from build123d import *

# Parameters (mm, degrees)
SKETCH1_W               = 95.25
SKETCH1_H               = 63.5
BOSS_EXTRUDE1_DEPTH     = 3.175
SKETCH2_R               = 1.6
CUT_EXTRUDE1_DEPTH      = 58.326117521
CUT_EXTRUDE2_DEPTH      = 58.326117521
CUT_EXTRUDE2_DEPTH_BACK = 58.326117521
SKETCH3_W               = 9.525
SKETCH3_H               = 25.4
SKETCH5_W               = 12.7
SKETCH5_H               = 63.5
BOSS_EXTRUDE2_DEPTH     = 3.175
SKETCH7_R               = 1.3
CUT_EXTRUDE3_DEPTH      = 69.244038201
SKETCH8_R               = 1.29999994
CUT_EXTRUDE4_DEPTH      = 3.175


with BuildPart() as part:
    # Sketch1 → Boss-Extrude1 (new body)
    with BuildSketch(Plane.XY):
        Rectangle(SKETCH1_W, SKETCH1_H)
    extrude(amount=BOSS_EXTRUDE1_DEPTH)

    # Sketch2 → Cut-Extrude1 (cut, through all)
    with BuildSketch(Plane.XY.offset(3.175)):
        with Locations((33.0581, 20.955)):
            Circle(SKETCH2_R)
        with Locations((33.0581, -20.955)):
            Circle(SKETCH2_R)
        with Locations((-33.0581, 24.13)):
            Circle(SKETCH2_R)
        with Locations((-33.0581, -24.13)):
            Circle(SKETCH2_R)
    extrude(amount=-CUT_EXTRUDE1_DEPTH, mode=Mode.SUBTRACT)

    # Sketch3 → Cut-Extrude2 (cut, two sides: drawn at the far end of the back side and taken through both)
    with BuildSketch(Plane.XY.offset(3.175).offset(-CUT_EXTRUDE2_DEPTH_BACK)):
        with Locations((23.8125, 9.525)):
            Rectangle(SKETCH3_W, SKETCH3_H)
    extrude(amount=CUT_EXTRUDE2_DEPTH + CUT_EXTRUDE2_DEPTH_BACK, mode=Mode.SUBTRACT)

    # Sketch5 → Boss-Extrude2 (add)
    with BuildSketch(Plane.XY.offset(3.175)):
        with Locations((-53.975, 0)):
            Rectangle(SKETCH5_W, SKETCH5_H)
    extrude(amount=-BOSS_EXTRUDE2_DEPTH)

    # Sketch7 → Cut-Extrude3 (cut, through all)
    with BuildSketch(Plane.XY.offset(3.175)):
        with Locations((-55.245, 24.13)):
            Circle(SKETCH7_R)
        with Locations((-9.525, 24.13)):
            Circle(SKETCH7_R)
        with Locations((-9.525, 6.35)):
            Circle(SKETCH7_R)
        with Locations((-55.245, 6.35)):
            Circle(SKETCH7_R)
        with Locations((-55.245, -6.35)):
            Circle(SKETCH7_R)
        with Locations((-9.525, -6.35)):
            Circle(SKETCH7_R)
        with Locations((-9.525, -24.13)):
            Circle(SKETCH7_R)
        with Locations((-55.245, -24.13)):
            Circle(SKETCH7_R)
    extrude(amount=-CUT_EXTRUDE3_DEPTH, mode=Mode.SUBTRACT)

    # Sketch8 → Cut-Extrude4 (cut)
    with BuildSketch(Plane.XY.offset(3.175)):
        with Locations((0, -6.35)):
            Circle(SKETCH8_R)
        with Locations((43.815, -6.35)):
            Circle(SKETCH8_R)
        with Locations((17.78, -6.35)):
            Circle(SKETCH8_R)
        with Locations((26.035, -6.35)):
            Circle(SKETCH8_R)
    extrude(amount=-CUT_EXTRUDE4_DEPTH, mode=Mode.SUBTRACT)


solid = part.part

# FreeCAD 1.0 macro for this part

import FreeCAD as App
import Part
import Sketcher
Q = App.Units.Quantity

doc = App.newDocument("Part")
body = doc.addObject("PartDesign::Body", "Body")

# Sketch on XY plane
sketch1 = doc.addObject("Sketcher::SketchObject", "Sketch")
body.addObject(sketch1)
sketch1.AttachmentSupport = (doc.XY_Plane, [""])
sketch1.MapMode = "FlatFace"
sketch1.addGeometry(Part.LineSegment(App.Vector(-47.625, 31.75, 0), App.Vector(-47.625, -31.75, 0)), False)
sketch1.addGeometry(Part.LineSegment(App.Vector(-47.625, -31.75, 0), App.Vector(47.625, -31.75, 0)), False)
sketch1.addGeometry(Part.LineSegment(App.Vector(47.625, -31.75, 0), App.Vector(47.625, 31.75, 0)), False)
sketch1.addGeometry(Part.LineSegment(App.Vector(47.625, 31.75, 0), App.Vector(-47.625, 31.75, 0)), False)
sketch1.addConstraint(Sketcher.Constraint("Coincident", 0, 2, 1, 1))
sketch1.addConstraint(Sketcher.Constraint("Coincident", 1, 2, 2, 1))
sketch1.addConstraint(Sketcher.Constraint("Coincident", 2, 2, 3, 1))
sketch1.addConstraint(Sketcher.Constraint("Coincident", 3, 2, 0, 1))
sketch1.addConstraint(Sketcher.Constraint("Vertical", 0))
sketch1.addConstraint(Sketcher.Constraint("Horizontal", 1))
sketch1.addConstraint(Sketcher.Constraint("Vertical", 2))
sketch1.addConstraint(Sketcher.Constraint("Horizontal", 3))
sketch1.addConstraint(Sketcher.Constraint("Symmetric", 0, 2, 2, 2, -1, 1))
sketch1.addConstraint(Sketcher.Constraint("DistanceY", 0, 2, 0, 1, Q("2.5 in")))
sketch1.addConstraint(Sketcher.Constraint("DistanceX", 1, 1, 1, 2, Q("3.75 in")))
pad1 = doc.addObject("PartDesign::Pad", "Pad")
body.addObject(pad1)
pad1.Profile = sketch1
pad1.Length = Q("0.125 in")

# Sketch on XY plane
sketch2 = doc.addObject("Sketcher::SketchObject", "Sketch001")
body.addObject(sketch2)
sketch2.AttachmentSupport = (doc.XY_Plane, [""])
sketch2.MapMode = "FlatFace"
sketch2.AttachmentOffset = App.Placement(App.Vector(0, 0, 0.125 * 25.4), App.Rotation())
sketch2.addGeometry(Part.Circle(App.Vector(33.0581, 20.955, 0), App.Vector(0, 0, 1), 1.6), False)
sketch2.addGeometry(Part.Circle(App.Vector(33.0581, -20.955, 0), App.Vector(0, 0, 1), 1.6), False)
sketch2.addGeometry(Part.Circle(App.Vector(-33.0581, 24.13, 0), App.Vector(0, 0, 1), 1.6), False)
sketch2.addGeometry(Part.Circle(App.Vector(-33.0581, -24.13, 0), App.Vector(0, 0, 1), 1.6), False)
sketch2.addConstraint(Sketcher.Constraint("Equal", 0, 1))
sketch2.addConstraint(Sketcher.Constraint("Equal", 1, 2))
sketch2.addConstraint(Sketcher.Constraint("Equal", 2, 3))
sketch2.addConstraint(Sketcher.Constraint("Symmetric", 0, 3, 1, 3, -1))
sketch2.addConstraint(Sketcher.Constraint("Symmetric", 2, 3, 3, 3, -1))
sketch2.addConstraint(Sketcher.Constraint("DistanceY", 3, 3, 2, 3, Q("1.9 in")))
sketch2.addConstraint(Sketcher.Constraint("Diameter", 0, 3.2))
sketch2.addConstraint(Sketcher.Constraint("DistanceY", 1, 3, 0, 3, Q("1.65 in")))
sketch2.addConstraint(Sketcher.Constraint("DistanceX", 2, 3, 0, 3, Q("2.603 in")))
sketch2.addConstraint(Sketcher.Constraint("DistanceX", -1, 1, 0, 3, Q("1.3015 in")))
pocket1 = doc.addObject("PartDesign::Pocket", "Pocket")
body.addObject(pocket1)
pocket1.Profile = sketch2
pocket1.Type = "ThroughAll"

# Sketch on XY plane
sketch3 = doc.addObject("Sketcher::SketchObject", "Sketch002")
body.addObject(sketch3)
sketch3.AttachmentSupport = (doc.XY_Plane, [""])
sketch3.MapMode = "FlatFace"
sketch3.AttachmentOffset = App.Placement(App.Vector(0, 0, 0.125 * 25.4), App.Rotation())
sketch3.addGeometry(Part.LineSegment(App.Vector(19.05, 22.225, 0), App.Vector(19.05, -3.175, 0)), False)
sketch3.addGeometry(Part.LineSegment(App.Vector(19.05, -3.175, 0), App.Vector(28.575, -3.175, 0)), False)
sketch3.addGeometry(Part.LineSegment(App.Vector(28.575, -3.175, 0), App.Vector(28.575, 22.225, 0)), False)
sketch3.addGeometry(Part.LineSegment(App.Vector(28.575, 22.225, 0), App.Vector(19.05, 22.225, 0)), False)
sketch3.addConstraint(Sketcher.Constraint("Coincident", 0, 2, 1, 1))
sketch3.addConstraint(Sketcher.Constraint("Coincident", 1, 2, 2, 1))
sketch3.addConstraint(Sketcher.Constraint("Coincident", 2, 2, 3, 1))
sketch3.addConstraint(Sketcher.Constraint("Coincident", 3, 2, 0, 1))
sketch3.addConstraint(Sketcher.Constraint("Vertical", 0))
sketch3.addConstraint(Sketcher.Constraint("Horizontal", 1))
sketch3.addConstraint(Sketcher.Constraint("Vertical", 2))
sketch3.addConstraint(Sketcher.Constraint("Horizontal", 3))
sketch3.addConstraint(Sketcher.Constraint("DistanceY", 0, 2, 0, 1, Q("1 in")))
sketch3.addConstraint(Sketcher.Constraint("DistanceX", 1, 1, 1, 2, Q("0.375 in")))
sketch3.addConstraint(Sketcher.Constraint("DistanceX", -1, 1, 0, 2, Q("0.75 in")))
sketch3.addConstraint(Sketcher.Constraint("DistanceY", 0, 2, -1, 1, Q("0.125 in")))
pocket2 = doc.addObject("PartDesign::Pocket", "Pocket001")
body.addObject(pocket2)
pocket2.Profile = sketch3
pocket2.Type = "ThroughAll"
pocket2.Midplane = True

# Sketch on XY plane
sketch4 = doc.addObject("Sketcher::SketchObject", "Sketch003")
body.addObject(sketch4)
sketch4.AttachmentSupport = (doc.XY_Plane, [""])
sketch4.MapMode = "FlatFace"
sketch4.AttachmentOffset = App.Placement(App.Vector(0, 0, 0.125 * 25.4), App.Rotation())
sketch4.addGeometry(Part.LineSegment(App.Vector(-60.325, 31.75, 0), App.Vector(-60.325, -31.75, 0)), False)
sketch4.addGeometry(Part.LineSegment(App.Vector(-60.325, -31.75, 0), App.Vector(-47.625, -31.75, 0)), False)
sketch4.addGeometry(Part.LineSegment(App.Vector(-47.625, -31.75, 0), App.Vector(-47.625, 31.75, 0)), False)
sketch4.addGeometry(Part.LineSegment(App.Vector(-47.625, 31.75, 0), App.Vector(-60.325, 31.75, 0)), False)
sketch4.addConstraint(Sketcher.Constraint("Coincident", 0, 2, 1, 1))
sketch4.addConstraint(Sketcher.Constraint("Coincident", 1, 2, 2, 1))
sketch4.addConstraint(Sketcher.Constraint("Coincident", 2, 2, 3, 1))
sketch4.addConstraint(Sketcher.Constraint("Coincident", 3, 2, 0, 1))
sketch4.addConstraint(Sketcher.Constraint("Vertical", 0))
sketch4.addConstraint(Sketcher.Constraint("Horizontal", 1))
sketch4.addConstraint(Sketcher.Constraint("Vertical", 2))
sketch4.addConstraint(Sketcher.Constraint("Horizontal", 3))
sketch4.addConstraint(Sketcher.Constraint("DistanceX", 1, 1, 1, 2, Q("0.5 in")))
sketch4.addConstraint(Sketcher.Constraint("DistanceY", 0, 2, 0, 1, Q("2.5 in")))
sketch4.addConstraint(Sketcher.Constraint("DistanceY", 0, 2, -1, 1, Q("1.25 in")))
sketch4.addConstraint(Sketcher.Constraint("DistanceX", 0, 2, -1, 1, Q("2.375 in")))
pad2 = doc.addObject("PartDesign::Pad", "Pad001")
body.addObject(pad2)
pad2.Profile = sketch4
pad2.Length = Q("0.125 in")
pad2.Reversed = True

# Sketch on XY plane
sketch5 = doc.addObject("Sketcher::SketchObject", "Sketch004")
body.addObject(sketch5)
sketch5.AttachmentSupport = (doc.XY_Plane, [""])
sketch5.MapMode = "FlatFace"
sketch5.AttachmentOffset = App.Placement(App.Vector(0, 0, 0.125 * 25.4), App.Rotation())
sketch5.addGeometry(Part.Circle(App.Vector(-55.245, 24.13, 0), App.Vector(0, 0, 1), 1.3), False)
sketch5.addGeometry(Part.Circle(App.Vector(-9.525, 24.13, 0), App.Vector(0, 0, 1), 1.3), False)
sketch5.addGeometry(Part.Circle(App.Vector(-9.525, 6.35, 0), App.Vector(0, 0, 1), 1.3), False)
sketch5.addGeometry(Part.Circle(App.Vector(-55.245, 6.35, 0), App.Vector(0, 0, 1), 1.3), False)
sketch5.addGeometry(Part.Circle(App.Vector(-55.245, -6.35, 0), App.Vector(0, 0, 1), 1.3), False)
sketch5.addGeometry(Part.Circle(App.Vector(-9.525, -6.35, 0), App.Vector(0, 0, 1), 1.3), False)
sketch5.addGeometry(Part.Circle(App.Vector(-9.525, -24.13, 0), App.Vector(0, 0, 1), 1.3), False)
sketch5.addGeometry(Part.Circle(App.Vector(-55.245, -24.13, 0), App.Vector(0, 0, 1), 1.3), False)
sketch5.addConstraint(Sketcher.Constraint("Equal", 0, 1))
sketch5.addConstraint(Sketcher.Constraint("Equal", 1, 2))
sketch5.addConstraint(Sketcher.Constraint("Equal", 2, 3))
sketch5.addConstraint(Sketcher.Constraint("Equal", 3, 4))
sketch5.addConstraint(Sketcher.Constraint("Equal", 4, 5))
sketch5.addConstraint(Sketcher.Constraint("Equal", 5, 6))
sketch5.addConstraint(Sketcher.Constraint("Equal", 6, 7))
sketch5.addConstraint(Sketcher.Constraint("Symmetric", 3, 3, 4, 3, -1))
sketch5.addConstraint(Sketcher.Constraint("Symmetric", 2, 3, 5, 3, -1))
sketch5.addConstraint(Sketcher.Constraint("Symmetric", 1, 3, 6, 3, -1))
sketch5.addConstraint(Sketcher.Constraint("Symmetric", 0, 3, 7, 3, -1))
sketch5.addConstraint(Sketcher.Constraint("Horizontal", 0, 3, 1, 3))
sketch5.addConstraint(Sketcher.Constraint("Horizontal", 2, 3, 3, 3))
sketch5.addConstraint(Sketcher.Constraint("Vertical", 1, 3, 2, 3))
sketch5.addConstraint(Sketcher.Constraint("Vertical", 0, 3, 3, 3))
sketch5.addConstraint(Sketcher.Constraint("DistanceX", 0, 3, 1, 3, Q("1.8 in")))
sketch5.addConstraint(Sketcher.Constraint("DistanceY", 2, 3, 1, 3, Q("0.7 in")))
sketch5.addConstraint(Sketcher.Constraint("DistanceY", 4, 3, 3, 3, Q("0.5 in")))
sketch5.addConstraint(Sketcher.Constraint("Diameter", 0, 2.6))
sketch5.addConstraint(Sketcher.Constraint("DistanceX", 0, 3, -1, 1, Q("2.175 in")))
pocket3 = doc.addObject("PartDesign::Pocket", "Pocket002")
body.addObject(pocket3)
pocket3.Profile = sketch5
pocket3.Type = "ThroughAll"

# Sketch on XY plane
sketch6 = doc.addObject("Sketcher::SketchObject", "Sketch005")
body.addObject(sketch6)
sketch6.AttachmentSupport = (doc.XY_Plane, [""])
sketch6.MapMode = "FlatFace"
sketch6.AttachmentOffset = App.Placement(App.Vector(0, 0, 0.125 * 25.4), App.Rotation())
sketch6.addGeometry(Part.Circle(App.Vector(0, -6.35, 0), App.Vector(0, 0, 1), 1.3), False)
sketch6.addGeometry(Part.Circle(App.Vector(43.815, -6.35, 0), App.Vector(0, 0, 1), 1.3), False)
sketch6.addGeometry(Part.Circle(App.Vector(17.78, -6.35, 0), App.Vector(0, 0, 1), 1.3), False)
sketch6.addGeometry(Part.Circle(App.Vector(26.035, -6.35, 0), App.Vector(0, 0, 1), 1.3), False)
sketch6.addConstraint(Sketcher.Constraint("Equal", 0, 1))
sketch6.addConstraint(Sketcher.Constraint("Equal", 1, 2))
sketch6.addConstraint(Sketcher.Constraint("Equal", 2, 3))
sketch6.addConstraint(Sketcher.Constraint("PointOnObject", 0, 3, -2))
sketch6.addConstraint(Sketcher.Constraint("Horizontal", 0, 3, 1, 3))
sketch6.addConstraint(Sketcher.Constraint("Horizontal", 1, 3, 2, 3))
sketch6.addConstraint(Sketcher.Constraint("Horizontal", 2, 3, 3, 3))
sketch6.addConstraint(Sketcher.Constraint("DistanceX", -1, 1, 2, 3, Q("0.7 in")))
sketch6.addConstraint(Sketcher.Constraint("DistanceX", 3, 3, 1, 3, Q("0.7 in")))
sketch6.addConstraint(Sketcher.Constraint("Diameter", 0, 2.6))
sketch6.addConstraint(Sketcher.Constraint("DistanceY", 0, 3, -1, 1, Q("0.25 in")))
sketch6.addConstraint(Sketcher.Constraint("DistanceX", -1, 1, 1, 3, Q("1.725 in")))
pocket4 = doc.addObject("PartDesign::Pocket", "Pocket003")
body.addObject(pocket4)
pocket4.Profile = sketch6
pocket4.Length = Q("0.125 in")

doc.recompute()
